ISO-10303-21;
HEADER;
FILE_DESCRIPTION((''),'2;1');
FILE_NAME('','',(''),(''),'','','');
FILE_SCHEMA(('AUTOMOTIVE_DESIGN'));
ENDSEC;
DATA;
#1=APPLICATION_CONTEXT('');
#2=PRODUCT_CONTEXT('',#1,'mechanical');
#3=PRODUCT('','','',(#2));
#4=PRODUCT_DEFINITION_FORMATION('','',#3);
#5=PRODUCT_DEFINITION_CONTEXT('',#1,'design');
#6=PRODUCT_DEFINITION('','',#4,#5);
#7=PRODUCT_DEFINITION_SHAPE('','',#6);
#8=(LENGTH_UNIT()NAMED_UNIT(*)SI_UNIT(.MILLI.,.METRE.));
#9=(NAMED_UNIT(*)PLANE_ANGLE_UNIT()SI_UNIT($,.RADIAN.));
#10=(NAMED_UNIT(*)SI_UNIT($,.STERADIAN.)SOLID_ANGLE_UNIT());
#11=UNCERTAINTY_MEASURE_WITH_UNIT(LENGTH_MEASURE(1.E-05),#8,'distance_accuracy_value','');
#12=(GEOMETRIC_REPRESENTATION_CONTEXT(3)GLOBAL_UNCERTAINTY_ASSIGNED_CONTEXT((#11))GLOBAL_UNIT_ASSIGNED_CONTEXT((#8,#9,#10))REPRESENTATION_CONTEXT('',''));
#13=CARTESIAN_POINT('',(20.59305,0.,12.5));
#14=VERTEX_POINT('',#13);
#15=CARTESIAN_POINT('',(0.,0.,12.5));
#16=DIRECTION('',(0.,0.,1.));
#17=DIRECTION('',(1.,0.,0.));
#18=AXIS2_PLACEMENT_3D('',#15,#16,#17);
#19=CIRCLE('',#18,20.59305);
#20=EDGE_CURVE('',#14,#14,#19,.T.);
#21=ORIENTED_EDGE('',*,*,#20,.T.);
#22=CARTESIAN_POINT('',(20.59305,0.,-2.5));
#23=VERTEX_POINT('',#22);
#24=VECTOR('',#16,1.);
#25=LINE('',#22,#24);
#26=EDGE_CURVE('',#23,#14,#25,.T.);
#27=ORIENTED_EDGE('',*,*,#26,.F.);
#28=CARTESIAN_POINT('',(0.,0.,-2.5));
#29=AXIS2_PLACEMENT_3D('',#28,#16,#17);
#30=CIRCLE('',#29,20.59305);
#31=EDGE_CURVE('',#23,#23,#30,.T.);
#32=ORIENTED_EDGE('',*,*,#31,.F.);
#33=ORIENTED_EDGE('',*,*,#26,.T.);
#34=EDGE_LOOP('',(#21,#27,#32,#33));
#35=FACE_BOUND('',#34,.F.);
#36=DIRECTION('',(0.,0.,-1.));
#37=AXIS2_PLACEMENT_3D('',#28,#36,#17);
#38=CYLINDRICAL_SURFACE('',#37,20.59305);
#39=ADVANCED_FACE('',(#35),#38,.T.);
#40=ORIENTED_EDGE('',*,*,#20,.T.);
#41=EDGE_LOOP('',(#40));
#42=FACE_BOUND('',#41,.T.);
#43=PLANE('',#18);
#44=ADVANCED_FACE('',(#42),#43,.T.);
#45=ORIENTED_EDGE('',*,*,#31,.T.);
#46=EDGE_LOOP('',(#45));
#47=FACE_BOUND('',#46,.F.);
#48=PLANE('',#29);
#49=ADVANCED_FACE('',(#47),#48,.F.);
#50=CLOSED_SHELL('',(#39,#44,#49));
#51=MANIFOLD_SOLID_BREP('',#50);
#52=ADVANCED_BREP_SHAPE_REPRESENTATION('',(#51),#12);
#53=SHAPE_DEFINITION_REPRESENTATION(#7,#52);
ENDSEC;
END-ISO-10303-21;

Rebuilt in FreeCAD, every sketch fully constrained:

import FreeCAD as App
import Part
import Sketcher

V = App.Vector

doc = App.newDocument("Part")
body = doc.addObject("PartDesign::Body", "Body")

# Sketch on XY plane
sketch1 = doc.addObject("Sketcher::SketchObject", "Sketch")
body.addObject(sketch1)
sketch1.AttachmentSupport = (doc.XY_Plane, [""])
sketch1.MapMode = "FlatFace"
sketch1.AttachmentOffset = App.Placement(V(0, 0, -2.5), App.Rotation())
sketch1.addGeometry(Part.Circle(V(0, 0, 0), V(0, 0, 1), 21), False)
sketch1.addConstraint([
    Sketcher.Constraint("Coincident", 0, 3, -1, 1),
    Sketcher.Constraint("Diameter", 0, 41.1861),
])
pad1 = doc.addObject("PartDesign::Pad", "Pad")
body.addObject(pad1)
pad1.Profile = sketch1
pad1.Length = 15

doc.recompute()
